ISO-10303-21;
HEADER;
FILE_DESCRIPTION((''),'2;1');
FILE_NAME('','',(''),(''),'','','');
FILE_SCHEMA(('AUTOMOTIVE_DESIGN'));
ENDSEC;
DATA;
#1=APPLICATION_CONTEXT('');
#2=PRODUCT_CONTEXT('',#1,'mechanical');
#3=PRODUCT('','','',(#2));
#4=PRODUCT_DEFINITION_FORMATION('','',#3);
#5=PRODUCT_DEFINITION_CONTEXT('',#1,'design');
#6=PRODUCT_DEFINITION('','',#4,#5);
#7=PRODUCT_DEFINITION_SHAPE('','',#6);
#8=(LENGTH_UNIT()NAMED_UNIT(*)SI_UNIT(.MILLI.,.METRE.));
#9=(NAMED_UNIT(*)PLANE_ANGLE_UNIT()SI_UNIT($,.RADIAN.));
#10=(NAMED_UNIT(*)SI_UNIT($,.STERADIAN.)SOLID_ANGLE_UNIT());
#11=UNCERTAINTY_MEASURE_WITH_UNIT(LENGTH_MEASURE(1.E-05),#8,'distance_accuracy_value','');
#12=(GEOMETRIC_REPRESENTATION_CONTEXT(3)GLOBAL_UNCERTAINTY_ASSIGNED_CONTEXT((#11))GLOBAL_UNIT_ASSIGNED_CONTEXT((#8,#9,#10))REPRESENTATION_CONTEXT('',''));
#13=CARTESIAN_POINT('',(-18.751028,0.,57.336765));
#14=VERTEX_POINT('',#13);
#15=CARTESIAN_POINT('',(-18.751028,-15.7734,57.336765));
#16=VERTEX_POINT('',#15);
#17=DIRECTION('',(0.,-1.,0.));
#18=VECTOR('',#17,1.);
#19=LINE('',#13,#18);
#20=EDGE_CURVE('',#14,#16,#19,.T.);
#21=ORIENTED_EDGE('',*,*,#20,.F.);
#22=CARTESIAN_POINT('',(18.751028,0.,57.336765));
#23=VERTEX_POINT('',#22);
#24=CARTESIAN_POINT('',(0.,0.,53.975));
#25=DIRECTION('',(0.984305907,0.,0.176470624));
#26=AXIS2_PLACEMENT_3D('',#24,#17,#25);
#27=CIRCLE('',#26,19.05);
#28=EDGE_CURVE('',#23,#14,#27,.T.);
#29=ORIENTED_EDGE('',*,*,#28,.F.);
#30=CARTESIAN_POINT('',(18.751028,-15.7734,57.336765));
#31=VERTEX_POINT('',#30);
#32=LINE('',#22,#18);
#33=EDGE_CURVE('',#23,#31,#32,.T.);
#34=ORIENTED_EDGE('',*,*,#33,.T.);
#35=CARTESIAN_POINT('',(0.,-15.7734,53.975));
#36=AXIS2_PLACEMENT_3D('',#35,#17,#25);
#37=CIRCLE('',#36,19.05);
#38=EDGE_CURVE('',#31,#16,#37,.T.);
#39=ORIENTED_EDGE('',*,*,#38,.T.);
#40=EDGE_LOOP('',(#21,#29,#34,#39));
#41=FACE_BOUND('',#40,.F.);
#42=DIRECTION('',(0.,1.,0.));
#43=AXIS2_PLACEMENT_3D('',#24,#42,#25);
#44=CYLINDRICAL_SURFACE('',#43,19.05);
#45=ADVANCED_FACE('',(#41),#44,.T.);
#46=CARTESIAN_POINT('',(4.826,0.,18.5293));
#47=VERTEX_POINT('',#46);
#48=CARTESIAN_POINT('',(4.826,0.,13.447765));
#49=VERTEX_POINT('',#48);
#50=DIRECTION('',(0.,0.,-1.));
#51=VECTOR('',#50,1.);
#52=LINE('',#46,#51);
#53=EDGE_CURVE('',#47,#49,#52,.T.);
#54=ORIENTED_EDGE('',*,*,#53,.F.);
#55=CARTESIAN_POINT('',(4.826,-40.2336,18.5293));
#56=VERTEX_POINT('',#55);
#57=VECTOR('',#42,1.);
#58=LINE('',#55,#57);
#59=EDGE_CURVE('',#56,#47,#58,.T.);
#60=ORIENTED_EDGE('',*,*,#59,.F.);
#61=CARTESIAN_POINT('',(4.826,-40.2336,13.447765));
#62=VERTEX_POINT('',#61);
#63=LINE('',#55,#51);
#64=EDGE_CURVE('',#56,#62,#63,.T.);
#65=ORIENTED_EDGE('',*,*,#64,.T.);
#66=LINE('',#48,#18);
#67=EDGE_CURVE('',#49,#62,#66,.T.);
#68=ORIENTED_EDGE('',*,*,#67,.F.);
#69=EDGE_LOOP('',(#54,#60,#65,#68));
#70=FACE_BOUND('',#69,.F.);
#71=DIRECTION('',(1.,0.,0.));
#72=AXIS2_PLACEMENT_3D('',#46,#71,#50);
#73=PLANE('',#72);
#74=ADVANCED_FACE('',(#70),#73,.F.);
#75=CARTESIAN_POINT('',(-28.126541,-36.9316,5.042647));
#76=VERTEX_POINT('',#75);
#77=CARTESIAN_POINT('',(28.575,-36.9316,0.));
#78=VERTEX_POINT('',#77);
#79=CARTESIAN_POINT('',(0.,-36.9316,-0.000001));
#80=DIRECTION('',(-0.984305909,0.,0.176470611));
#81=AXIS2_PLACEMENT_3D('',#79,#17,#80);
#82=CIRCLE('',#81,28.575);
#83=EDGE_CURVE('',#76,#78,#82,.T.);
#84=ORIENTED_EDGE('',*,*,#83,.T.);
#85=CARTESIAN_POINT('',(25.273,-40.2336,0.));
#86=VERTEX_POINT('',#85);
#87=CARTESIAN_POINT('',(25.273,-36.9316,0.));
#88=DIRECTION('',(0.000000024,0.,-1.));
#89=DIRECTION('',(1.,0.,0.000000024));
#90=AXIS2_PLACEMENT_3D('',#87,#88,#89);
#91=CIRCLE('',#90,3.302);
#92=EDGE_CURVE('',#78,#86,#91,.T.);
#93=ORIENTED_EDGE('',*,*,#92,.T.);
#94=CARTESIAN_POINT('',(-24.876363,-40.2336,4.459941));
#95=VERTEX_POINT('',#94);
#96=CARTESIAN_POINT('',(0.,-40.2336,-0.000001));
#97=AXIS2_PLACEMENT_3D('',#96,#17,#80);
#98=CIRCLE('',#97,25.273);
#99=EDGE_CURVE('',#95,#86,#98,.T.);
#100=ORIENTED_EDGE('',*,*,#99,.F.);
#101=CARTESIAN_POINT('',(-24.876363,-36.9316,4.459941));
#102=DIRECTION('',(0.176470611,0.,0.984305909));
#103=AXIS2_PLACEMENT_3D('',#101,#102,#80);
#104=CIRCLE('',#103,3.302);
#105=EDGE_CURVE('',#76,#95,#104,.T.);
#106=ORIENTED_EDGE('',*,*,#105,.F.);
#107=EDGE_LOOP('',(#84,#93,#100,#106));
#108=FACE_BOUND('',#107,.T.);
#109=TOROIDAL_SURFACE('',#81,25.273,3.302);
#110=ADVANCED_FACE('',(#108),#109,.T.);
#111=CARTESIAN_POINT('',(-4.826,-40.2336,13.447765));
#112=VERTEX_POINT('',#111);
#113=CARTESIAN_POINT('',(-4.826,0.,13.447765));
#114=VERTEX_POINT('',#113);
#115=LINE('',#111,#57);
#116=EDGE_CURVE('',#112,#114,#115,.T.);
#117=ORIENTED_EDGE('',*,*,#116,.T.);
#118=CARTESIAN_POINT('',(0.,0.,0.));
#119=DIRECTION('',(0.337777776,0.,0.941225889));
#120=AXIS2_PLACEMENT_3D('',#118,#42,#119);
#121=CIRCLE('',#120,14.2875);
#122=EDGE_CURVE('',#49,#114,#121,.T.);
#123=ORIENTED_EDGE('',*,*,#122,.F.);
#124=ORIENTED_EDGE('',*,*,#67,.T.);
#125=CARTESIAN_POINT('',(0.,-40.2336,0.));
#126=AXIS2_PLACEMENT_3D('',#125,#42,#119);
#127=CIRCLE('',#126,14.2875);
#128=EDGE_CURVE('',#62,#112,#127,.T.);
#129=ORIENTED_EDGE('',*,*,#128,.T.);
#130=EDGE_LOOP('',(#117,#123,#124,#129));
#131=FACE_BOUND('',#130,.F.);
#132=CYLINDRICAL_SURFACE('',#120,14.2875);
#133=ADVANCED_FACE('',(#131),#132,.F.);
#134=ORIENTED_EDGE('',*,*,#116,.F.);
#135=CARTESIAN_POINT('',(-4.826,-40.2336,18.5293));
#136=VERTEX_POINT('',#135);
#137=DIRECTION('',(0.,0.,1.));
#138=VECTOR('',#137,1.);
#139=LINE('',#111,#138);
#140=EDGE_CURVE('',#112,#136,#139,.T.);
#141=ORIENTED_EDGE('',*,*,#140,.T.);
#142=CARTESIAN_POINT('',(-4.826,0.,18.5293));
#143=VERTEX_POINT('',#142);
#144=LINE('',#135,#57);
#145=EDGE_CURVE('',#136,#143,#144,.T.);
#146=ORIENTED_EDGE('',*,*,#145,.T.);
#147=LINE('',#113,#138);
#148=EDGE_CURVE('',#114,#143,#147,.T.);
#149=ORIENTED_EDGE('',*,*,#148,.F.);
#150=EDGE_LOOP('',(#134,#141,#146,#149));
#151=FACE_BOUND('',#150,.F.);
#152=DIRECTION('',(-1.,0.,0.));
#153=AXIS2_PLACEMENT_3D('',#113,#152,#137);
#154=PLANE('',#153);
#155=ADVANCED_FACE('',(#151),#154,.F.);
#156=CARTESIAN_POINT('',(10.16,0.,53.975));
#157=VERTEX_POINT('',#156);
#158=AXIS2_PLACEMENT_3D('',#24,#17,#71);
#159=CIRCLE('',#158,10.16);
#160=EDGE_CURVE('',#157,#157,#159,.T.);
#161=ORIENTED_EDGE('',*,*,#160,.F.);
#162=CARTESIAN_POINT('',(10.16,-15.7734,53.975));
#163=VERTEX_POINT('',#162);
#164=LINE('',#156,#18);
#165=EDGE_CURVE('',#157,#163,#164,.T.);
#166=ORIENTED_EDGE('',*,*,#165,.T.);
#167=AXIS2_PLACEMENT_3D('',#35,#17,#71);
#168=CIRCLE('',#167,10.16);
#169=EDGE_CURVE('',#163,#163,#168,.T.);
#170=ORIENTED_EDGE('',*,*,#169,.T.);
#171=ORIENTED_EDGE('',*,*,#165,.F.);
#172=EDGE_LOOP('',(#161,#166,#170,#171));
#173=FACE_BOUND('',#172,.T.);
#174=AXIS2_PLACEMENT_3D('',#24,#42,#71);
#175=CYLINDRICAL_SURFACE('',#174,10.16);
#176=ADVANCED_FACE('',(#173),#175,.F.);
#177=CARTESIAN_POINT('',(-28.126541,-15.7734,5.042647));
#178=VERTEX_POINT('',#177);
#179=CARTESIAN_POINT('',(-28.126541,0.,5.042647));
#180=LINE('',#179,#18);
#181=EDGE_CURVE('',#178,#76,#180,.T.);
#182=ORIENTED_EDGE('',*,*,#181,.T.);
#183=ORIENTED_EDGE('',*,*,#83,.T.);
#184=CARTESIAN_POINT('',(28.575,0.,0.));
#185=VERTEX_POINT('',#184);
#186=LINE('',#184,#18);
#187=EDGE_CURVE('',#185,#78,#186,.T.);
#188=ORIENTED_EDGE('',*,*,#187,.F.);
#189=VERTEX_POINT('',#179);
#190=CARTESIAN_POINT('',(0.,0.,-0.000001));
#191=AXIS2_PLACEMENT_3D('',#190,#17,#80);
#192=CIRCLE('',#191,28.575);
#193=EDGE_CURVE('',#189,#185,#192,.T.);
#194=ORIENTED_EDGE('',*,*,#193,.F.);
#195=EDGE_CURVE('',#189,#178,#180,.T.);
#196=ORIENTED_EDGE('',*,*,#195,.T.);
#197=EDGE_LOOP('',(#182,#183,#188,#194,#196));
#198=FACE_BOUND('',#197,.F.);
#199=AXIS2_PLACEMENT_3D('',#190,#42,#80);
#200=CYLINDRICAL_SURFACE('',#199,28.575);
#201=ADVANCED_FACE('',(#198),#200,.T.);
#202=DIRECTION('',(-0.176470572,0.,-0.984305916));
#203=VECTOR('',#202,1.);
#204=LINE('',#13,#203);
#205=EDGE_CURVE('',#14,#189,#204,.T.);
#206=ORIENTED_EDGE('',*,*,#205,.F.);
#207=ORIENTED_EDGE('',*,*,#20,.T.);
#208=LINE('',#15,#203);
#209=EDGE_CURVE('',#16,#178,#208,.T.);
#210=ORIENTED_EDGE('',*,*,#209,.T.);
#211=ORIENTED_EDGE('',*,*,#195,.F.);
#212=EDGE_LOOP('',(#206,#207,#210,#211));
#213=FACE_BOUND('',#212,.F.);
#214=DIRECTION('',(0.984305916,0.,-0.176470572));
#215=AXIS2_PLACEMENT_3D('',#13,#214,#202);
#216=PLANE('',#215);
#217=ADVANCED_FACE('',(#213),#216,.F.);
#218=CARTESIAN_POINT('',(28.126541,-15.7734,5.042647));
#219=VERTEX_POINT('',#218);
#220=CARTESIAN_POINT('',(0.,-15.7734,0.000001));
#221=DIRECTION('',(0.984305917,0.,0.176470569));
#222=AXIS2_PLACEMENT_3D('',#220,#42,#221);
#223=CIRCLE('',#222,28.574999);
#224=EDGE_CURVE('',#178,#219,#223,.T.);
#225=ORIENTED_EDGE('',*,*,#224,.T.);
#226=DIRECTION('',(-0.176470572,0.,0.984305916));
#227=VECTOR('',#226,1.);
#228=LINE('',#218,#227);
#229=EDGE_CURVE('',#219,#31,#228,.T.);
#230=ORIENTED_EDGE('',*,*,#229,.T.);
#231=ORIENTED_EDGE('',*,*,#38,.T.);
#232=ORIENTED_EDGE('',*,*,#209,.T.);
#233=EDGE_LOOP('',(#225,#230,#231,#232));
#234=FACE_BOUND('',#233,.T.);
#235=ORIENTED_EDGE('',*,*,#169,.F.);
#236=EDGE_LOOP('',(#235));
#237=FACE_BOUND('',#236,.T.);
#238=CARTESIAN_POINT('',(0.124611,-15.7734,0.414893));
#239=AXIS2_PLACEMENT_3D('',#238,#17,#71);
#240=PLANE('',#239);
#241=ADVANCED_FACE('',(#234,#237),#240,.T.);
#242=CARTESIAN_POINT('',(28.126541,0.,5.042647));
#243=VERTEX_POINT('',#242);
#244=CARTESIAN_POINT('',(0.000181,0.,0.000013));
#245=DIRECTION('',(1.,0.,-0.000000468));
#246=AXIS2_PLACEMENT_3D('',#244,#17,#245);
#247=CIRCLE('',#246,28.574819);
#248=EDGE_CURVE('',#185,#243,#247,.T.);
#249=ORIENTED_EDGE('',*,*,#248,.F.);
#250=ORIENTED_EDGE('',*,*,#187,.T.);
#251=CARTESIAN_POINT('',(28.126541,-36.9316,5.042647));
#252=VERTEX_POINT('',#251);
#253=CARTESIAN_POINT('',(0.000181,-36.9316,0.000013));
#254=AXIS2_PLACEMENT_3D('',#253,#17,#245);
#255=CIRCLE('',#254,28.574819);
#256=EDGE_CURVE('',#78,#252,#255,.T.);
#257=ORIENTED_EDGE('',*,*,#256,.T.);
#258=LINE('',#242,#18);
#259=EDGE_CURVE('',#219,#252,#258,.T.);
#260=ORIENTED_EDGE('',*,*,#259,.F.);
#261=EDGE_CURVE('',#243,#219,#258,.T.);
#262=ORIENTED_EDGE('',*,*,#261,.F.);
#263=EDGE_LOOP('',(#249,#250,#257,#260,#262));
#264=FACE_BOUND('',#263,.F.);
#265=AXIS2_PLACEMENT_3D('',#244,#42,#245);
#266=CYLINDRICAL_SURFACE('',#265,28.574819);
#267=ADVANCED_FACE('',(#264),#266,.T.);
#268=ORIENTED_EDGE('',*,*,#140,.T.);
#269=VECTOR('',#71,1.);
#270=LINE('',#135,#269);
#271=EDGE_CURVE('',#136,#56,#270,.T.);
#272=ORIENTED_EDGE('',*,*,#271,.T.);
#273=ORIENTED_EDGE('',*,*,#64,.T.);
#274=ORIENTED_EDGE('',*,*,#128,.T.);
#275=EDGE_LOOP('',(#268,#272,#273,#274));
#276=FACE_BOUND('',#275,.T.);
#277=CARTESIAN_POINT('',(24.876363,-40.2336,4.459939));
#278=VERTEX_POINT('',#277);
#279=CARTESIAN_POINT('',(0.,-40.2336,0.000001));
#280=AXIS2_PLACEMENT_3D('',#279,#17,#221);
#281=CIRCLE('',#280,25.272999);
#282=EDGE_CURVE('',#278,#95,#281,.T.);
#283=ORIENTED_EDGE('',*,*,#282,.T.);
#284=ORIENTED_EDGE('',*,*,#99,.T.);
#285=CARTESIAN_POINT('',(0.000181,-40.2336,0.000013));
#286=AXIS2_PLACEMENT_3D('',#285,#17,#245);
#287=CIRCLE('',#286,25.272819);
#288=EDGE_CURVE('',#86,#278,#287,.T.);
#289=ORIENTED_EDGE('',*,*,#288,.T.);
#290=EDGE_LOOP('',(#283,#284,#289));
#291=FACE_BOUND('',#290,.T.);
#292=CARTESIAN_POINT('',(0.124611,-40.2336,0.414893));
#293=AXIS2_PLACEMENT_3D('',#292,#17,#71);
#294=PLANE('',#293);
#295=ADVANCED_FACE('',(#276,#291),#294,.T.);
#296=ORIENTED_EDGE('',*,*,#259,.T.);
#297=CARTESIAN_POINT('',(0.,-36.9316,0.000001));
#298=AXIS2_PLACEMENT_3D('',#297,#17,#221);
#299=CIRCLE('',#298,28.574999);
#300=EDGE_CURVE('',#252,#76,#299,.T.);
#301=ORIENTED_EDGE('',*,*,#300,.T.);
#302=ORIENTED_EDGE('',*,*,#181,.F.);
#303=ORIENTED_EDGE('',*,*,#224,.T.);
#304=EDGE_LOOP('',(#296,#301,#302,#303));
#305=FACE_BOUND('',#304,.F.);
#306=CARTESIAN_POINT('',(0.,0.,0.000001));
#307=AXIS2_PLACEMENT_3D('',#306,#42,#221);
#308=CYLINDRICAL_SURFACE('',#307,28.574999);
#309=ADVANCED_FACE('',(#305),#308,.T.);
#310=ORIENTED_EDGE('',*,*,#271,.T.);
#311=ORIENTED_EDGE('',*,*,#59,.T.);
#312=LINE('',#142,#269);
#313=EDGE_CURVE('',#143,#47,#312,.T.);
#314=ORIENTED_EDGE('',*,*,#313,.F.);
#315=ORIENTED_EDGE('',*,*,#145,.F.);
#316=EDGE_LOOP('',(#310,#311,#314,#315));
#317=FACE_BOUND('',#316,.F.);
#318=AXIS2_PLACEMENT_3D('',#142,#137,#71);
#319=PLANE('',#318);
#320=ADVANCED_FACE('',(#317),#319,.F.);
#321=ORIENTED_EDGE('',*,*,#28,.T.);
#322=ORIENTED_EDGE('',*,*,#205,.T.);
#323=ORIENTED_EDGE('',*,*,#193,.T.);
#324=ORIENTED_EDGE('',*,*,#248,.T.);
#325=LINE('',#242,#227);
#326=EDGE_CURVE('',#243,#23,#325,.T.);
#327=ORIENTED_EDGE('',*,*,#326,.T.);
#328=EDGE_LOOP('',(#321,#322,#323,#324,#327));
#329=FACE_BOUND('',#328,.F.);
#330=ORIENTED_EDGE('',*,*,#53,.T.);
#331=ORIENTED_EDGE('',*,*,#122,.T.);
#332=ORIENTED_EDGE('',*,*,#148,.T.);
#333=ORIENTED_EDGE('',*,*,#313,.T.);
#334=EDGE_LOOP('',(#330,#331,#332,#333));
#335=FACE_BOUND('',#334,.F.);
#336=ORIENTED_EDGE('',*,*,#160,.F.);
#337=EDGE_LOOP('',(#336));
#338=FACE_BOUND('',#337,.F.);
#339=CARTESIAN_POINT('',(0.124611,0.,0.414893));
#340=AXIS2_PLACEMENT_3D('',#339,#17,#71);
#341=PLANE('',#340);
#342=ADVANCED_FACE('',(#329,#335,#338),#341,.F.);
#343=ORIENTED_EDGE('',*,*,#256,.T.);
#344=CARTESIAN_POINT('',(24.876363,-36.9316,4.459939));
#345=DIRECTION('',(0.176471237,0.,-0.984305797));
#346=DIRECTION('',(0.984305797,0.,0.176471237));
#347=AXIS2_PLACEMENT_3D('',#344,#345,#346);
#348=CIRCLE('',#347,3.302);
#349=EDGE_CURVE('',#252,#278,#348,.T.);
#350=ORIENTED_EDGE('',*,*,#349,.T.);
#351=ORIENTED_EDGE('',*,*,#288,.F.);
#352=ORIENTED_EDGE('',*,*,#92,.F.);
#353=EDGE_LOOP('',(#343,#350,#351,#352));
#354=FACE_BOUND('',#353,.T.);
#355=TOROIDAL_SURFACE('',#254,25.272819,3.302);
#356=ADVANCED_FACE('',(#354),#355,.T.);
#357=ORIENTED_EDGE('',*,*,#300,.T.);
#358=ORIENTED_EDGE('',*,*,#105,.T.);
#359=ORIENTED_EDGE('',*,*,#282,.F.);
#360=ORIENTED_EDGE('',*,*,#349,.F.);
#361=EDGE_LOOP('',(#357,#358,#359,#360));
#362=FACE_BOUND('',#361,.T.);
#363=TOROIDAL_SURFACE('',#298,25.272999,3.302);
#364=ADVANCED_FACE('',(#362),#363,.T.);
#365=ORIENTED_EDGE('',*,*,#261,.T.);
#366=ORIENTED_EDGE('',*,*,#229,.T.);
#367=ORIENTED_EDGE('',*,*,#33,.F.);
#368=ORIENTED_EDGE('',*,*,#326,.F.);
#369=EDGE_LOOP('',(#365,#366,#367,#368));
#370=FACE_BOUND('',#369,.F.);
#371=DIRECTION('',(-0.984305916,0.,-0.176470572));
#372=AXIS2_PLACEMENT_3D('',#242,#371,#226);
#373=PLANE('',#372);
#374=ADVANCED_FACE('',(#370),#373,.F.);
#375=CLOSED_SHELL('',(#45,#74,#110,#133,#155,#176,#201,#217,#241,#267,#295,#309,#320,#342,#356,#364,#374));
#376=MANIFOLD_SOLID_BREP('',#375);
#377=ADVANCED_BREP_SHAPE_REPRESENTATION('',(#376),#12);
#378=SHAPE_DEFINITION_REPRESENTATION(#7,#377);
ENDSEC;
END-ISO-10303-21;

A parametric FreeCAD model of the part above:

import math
import FreeCAD as App
import Part
import Sketcher
Q = App.Units.Quantity


def edges_at(feature, points):
    """Names of the edges that pass closest to the given points."""
    edges = feature.Shape.Edges
    near = lambda p: min(range(len(edges)), key=lambda i: edges[i].distToShape(Part.Vertex(*p))[0])
    return sorted({f"Edge{near(p) + 1}" for p in points})

doc = App.newDocument("Part")
body = doc.addObject("PartDesign::Body", "Body")

sketch1 = doc.addObject("Sketcher::SketchObject", "Sketch")
body.addObject(sketch1)
sketch1.AttachmentSupport = (doc.XZ_Plane, [""])
sketch1.MapMode = "FlatFace"
sketch1.addGeometry([
    Part.ArcOfCircle(Part.Circle(App.Vector(0, -0.000001, 0), App.Vector(0, 0, 1), 28.575), math.radians(169.83575), math.radians(360.000001)),
    Part.ArcOfCircle(Part.Circle(App.Vector(0.000181, 0.000013, 0), App.Vector(0, 0, 1), 28.574819), math.radians(-0.000027), math.radians(10.164286)),
    Part.ArcOfCircle(Part.Circle(App.Vector(0, 0.000001, 0), App.Vector(0, 0, 1), 28.574999), math.radians(10.164248), math.radians(169.835752)),
    Part.LineSegment(App.Vector(4.826, 18.5293, 0), App.Vector(4.826, 13.447765, 0)),
    Part.ArcOfCircle(Part.Circle(App.Vector(0, 0, 0), App.Vector(0, 0, 1), 14.2875), math.radians(109.741542), math.radians(430.258458)),
    Part.LineSegment(App.Vector(-4.826, 13.447765, 0), App.Vector(-4.826, 18.5293, 0)),
    Part.LineSegment(App.Vector(-4.826, 18.5293, 0), App.Vector(4.826, 18.5293, 0)),
], False)
sketch1.addConstraint([
    Sketcher.Constraint("Coincident", 0, 2, 1, 1),
    Sketcher.Constraint("Coincident", 1, 2, 2, 1),
    Sketcher.Constraint("Coincident", 2, 2, 0, 1),
    Sketcher.Constraint("Coincident", 3, 2, 4, 2),
    Sketcher.Constraint("Coincident", 4, 1, 5, 1),
    Sketcher.Constraint("Coincident", 5, 2, 6, 1),
    Sketcher.Constraint("Coincident", 6, 2, 3, 1),
    Sketcher.Constraint("Vertical", 3),
    Sketcher.Constraint("Vertical", 5),
    Sketcher.Constraint("Horizontal", 6),
    Sketcher.Constraint("Coincident", 0, 3, -1, 1),
    Sketcher.Constraint("Coincident", 2, 3, -1, 1),
    Sketcher.Constraint("Coincident", 4, 3, -1, 1),
    Sketcher.Constraint("PointOnObject", 0, 2, -1),
    Sketcher.Constraint("Radius", 0, Q("1.125 in")),
    Sketcher.Constraint("Radius", 4, Q("0.5625 in")),
    Sketcher.Constraint("DistanceX", 6, 1, 6, 2, Q("0.38 in")),
    Sketcher.Constraint("DistanceX", -1, 1, 3, 2, Q("0.19 in")),
    Sketcher.Constraint("Radius", 1, Q("28.574819 mm")),
    Sketcher.Constraint("DistanceY", -1, 1, 5, 2, Q("0.7295 in")),
    Sketcher.Constraint("DistanceX", -1, 1, 1, 2, Q("28.126541 mm")),
    Sketcher.Constraint("DistanceX", 2, 2, -1, 1, Q("28.126541 mm")),
])
pad1 = doc.addObject("PartDesign::Pad", "Pad")
body.addObject(pad1)
pad1.Profile = sketch1
pad1.Length = Q("1.584 in")

sketch2 = doc.addObject("Sketcher::SketchObject", "Sketch001")
body.addObject(sketch2)
sketch2.AttachmentSupport = (doc.XZ_Plane, [""])
sketch2.MapMode = "FlatFace"
sketch2.addGeometry([
    Part.ArcOfCircle(Part.Circle(App.Vector(0, -0.000001, 0), App.Vector(0, 0, 1), 28.575), math.radians(169.83575), math.radians(360.000001)),
    Part.ArcOfCircle(Part.Circle(App.Vector(0.000181, 0.000013, 0), App.Vector(0, 0, 1), 28.574819), math.radians(-0.000027), math.radians(10.164286)),
    Part.LineSegment(App.Vector(28.126541, 5.042647, 0), App.Vector(18.751028, 57.336765, 0)),
    Part.ArcOfCircle(Part.Circle(App.Vector(0, 53.975, 0), App.Vector(0, 0, 1), 19.05), math.radians(10.164251), math.radians(169.835749)),
    Part.LineSegment(App.Vector(-18.751028, 57.336765, 0), App.Vector(-28.126541, 5.042647, 0)),
    Part.LineSegment(App.Vector(4.826, 18.5293, 0), App.Vector(4.826, 13.447765, 0)),
    Part.ArcOfCircle(Part.Circle(App.Vector(0, 0, 0), App.Vector(0, 0, 1), 14.2875), math.radians(109.741542), math.radians(430.258458)),
    Part.LineSegment(App.Vector(-4.826, 13.447765, 0), App.Vector(-4.826, 18.5293, 0)),
    Part.LineSegment(App.Vector(-4.826, 18.5293, 0), App.Vector(4.826, 18.5293, 0)),
    Part.Circle(App.Vector(0, 53.975, 0), App.Vector(0, 0, 1), 10.16),
], False)
sketch2.addConstraint([
    Sketcher.Constraint("Coincident", 0, 2, 1, 1),
    Sketcher.Constraint("Coincident", 1, 2, 2, 1),
    Sketcher.Constraint("Coincident", 2, 2, 3, 1),
    Sketcher.Constraint("Coincident", 3, 2, 4, 1),
    Sketcher.Constraint("Coincident", 4, 2, 0, 1),
    Sketcher.Constraint("Coincident", 5, 2, 6, 2),
    Sketcher.Constraint("Coincident", 6, 1, 7, 1),
    Sketcher.Constraint("Coincident", 7, 2, 8, 1),
    Sketcher.Constraint("Coincident", 8, 2, 5, 1),
    Sketcher.Constraint("Vertical", 5),
    Sketcher.Constraint("Vertical", 7),
    Sketcher.Constraint("Horizontal", 8),
    Sketcher.Constraint("Coincident", 0, 3, -1, 1),
    Sketcher.Constraint("Coincident", 6, 3, -1, 1),
    Sketcher.Constraint("Coincident", 9, 3, 3, 3),
    Sketcher.Constraint("PointOnObject", 3, 3, -2),
    Sketcher.Constraint("PointOnObject", 0, 2, -1),
    Sketcher.Constraint("Diameter", 9, Q("0.8 in")),
    Sketcher.Constraint("Radius", 3, Q("0.75 in")),
    Sketcher.Constraint("Radius", 0, Q("1.125 in")),
    Sketcher.Constraint("Radius", 6, Q("0.5625 in")),
    Sketcher.Constraint("DistanceX", 8, 1, 8, 2, Q("0.38 in")),
    Sketcher.Constraint("DistanceX", -1, 1, 5, 2, Q("0.19 in")),
    Sketcher.Constraint("DistanceY", -1, 1, 3, 3, Q("2.125 in")),
    Sketcher.Constraint("Radius", 1, Q("28.574819 mm")),
    Sketcher.Constraint("DistanceY", -1, 1, 7, 2, Q("0.7295 in")),
    Sketcher.Constraint("Distance", 2, Q("53.127912 mm")),
    Sketcher.Constraint("Distance", 4, Q("53.127912 mm")),
    Sketcher.Constraint("DistanceX", -1, 1, 1, 2, Q("28.126541 mm")),
    Sketcher.Constraint("DistanceX", -1, 1, 2, 2, Q("18.751028 mm")),
    Sketcher.Constraint("DistanceX", 4, 2, -1, 1, Q("28.126541 mm")),
])
pad2 = doc.addObject("PartDesign::Pad", "Pad001")
body.addObject(pad2)
pad2.Profile = sketch2
pad2.Length = Q("0.621 in")
doc.recompute()

fillet = doc.addObject("PartDesign::Fillet", "Fillet")
body.addObject(fillet)
fillet.Base = (pad2, edges_at(pad2, [(-2.531, -40.234, -28.463)]))
fillet.Radius = Q("0.13 in")

doc.recompute()
